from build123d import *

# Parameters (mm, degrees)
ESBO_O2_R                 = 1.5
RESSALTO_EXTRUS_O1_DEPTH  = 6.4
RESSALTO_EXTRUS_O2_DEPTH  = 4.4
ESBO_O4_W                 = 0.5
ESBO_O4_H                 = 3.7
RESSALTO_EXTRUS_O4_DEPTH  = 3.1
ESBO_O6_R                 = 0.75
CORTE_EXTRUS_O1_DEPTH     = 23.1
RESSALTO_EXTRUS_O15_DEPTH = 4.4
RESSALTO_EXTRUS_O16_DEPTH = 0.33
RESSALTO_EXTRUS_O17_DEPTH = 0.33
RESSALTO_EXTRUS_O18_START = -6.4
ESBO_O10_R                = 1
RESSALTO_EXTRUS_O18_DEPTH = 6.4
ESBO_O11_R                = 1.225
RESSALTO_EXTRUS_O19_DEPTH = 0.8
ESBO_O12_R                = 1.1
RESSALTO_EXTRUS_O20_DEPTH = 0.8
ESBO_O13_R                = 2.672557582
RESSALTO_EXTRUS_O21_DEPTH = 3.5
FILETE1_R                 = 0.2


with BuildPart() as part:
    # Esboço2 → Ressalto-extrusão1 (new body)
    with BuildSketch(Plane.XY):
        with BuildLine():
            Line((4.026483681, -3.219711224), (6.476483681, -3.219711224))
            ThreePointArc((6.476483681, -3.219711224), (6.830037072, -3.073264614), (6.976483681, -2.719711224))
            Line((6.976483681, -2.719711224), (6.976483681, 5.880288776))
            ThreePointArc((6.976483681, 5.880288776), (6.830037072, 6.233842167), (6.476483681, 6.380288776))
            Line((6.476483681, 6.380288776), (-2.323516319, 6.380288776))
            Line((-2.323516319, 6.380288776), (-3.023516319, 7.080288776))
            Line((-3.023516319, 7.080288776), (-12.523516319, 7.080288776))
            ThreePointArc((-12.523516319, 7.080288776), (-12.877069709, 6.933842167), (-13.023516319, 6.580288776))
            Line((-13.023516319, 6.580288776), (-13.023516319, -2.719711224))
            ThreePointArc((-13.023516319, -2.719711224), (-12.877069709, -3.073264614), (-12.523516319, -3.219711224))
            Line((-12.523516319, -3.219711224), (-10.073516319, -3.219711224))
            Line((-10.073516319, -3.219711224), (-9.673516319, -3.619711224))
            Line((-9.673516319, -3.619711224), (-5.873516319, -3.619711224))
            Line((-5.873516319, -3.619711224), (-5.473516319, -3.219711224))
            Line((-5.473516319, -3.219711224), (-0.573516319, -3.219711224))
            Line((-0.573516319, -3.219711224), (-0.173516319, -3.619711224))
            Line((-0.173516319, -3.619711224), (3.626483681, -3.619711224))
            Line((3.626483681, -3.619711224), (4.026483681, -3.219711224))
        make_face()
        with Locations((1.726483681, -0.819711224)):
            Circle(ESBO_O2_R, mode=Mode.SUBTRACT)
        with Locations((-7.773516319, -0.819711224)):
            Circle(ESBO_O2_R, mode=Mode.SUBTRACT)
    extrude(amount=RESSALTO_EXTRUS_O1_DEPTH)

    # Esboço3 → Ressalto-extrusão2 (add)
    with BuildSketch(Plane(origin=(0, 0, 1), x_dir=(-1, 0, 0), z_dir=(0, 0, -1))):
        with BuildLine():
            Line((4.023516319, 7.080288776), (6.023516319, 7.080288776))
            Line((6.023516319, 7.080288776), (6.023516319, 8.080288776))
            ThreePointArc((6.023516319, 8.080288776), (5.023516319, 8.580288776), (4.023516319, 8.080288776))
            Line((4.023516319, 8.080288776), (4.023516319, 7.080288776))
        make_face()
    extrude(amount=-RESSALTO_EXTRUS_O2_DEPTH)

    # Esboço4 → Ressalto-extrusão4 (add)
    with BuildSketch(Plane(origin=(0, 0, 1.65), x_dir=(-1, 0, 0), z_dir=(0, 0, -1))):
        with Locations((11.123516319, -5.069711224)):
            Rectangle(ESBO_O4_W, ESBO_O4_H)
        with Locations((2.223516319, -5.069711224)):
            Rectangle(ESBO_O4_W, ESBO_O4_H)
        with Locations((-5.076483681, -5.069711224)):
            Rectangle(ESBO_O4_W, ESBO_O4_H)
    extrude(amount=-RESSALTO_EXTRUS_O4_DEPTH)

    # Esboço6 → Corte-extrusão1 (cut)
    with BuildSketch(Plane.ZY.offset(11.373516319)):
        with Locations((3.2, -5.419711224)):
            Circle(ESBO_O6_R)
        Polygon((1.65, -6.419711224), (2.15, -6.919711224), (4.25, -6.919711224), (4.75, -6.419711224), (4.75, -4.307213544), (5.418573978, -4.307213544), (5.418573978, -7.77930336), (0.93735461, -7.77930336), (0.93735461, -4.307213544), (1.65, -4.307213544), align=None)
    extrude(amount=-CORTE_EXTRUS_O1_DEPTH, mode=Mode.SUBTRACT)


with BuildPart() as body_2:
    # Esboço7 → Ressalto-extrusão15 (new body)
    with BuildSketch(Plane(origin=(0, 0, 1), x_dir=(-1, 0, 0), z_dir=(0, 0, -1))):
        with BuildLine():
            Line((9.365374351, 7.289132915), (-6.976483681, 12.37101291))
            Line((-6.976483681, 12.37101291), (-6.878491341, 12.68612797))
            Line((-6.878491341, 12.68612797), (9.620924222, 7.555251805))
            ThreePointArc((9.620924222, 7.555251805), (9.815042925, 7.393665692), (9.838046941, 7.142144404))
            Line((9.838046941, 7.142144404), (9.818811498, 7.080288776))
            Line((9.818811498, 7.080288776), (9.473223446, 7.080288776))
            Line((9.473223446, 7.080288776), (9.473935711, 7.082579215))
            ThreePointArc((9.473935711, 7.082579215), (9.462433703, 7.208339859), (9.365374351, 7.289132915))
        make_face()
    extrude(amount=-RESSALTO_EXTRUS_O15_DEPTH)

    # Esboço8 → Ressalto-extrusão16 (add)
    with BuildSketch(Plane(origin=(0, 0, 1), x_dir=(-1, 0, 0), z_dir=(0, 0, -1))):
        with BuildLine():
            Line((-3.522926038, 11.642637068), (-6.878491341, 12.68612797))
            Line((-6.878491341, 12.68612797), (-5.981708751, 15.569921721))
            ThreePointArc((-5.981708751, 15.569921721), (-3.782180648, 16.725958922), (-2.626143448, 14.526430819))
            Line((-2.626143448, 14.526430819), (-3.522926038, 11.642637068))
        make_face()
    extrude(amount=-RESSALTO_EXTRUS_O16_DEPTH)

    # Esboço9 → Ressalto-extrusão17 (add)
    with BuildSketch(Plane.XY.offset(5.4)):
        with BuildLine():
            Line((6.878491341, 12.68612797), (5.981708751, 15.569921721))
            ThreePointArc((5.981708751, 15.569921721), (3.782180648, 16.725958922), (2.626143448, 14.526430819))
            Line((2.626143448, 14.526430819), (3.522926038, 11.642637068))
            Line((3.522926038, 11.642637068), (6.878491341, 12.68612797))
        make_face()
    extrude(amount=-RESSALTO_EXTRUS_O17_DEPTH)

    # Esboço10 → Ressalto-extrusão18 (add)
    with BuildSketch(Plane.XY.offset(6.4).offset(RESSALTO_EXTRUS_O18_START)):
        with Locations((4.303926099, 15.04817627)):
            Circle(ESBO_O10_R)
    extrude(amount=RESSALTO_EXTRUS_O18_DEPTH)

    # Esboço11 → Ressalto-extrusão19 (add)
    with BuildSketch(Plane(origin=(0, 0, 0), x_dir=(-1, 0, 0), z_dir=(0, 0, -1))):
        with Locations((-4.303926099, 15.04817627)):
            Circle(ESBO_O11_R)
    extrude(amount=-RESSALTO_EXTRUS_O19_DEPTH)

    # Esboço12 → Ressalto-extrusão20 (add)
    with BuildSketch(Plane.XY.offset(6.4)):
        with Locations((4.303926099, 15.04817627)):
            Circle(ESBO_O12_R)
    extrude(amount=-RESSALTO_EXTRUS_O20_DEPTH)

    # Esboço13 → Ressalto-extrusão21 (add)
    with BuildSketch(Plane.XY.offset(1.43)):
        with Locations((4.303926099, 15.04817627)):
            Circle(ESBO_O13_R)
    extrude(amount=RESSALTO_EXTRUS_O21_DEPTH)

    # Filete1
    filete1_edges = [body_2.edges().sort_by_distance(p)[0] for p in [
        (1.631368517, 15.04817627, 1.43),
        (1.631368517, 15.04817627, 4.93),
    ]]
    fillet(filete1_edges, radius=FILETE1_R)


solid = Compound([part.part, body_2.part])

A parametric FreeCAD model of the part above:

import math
import FreeCAD as App
import Part
import Sketcher
Q = App.Units.Quantity


def edges_at(feature, points):
    """Names of the edges that pass closest to the given points."""
    edges = feature.Shape.Edges
    near = lambda p: min(range(len(edges)), key=lambda i: edges[i].distToShape(Part.Vertex(*p))[0])
    return sorted({f"Edge{near(p) + 1}" for p in points})


def add_polygon(sketch, points):
    """Adds a closed chain of lines whose ends are joined by coincident constraints."""
    first, n = sketch.GeometryCount, len(points)
    for a, b in zip(points, points[1:] + points[:1]):
        sketch.addGeometry(Part.LineSegment(App.Vector(*a, 0), App.Vector(*b, 0)), False)
    for i in range(n):
        sketch.addConstraint(Sketcher.Constraint("Coincident", first + i, 2, first + (i + 1) % n, 1))

doc = App.newDocument("Part")
body = doc.addObject("PartDesign::Body", "Body")

sketch1 = doc.addObject("Sketcher::SketchObject", "Sketch")
body.addObject(sketch1)
sketch1.AttachmentSupport = (doc.XY_Plane, [""])
sketch1.MapMode = "FlatFace"
sketch1.addGeometry([
    Part.LineSegment(App.Vector(4.03, -3.22, 0), App.Vector(6.48, -3.22, 0)),
    Part.ArcOfCircle(Part.Circle(App.Vector(6.48, -2.72, 0), App.Vector(0, 0, 1), 0.5), math.radians(-90), math.radians(0)),
    Part.LineSegment(App.Vector(6.98, -2.72, 0), App.Vector(6.98, 5.88, 0)),
    Part.ArcOfCircle(Part.Circle(App.Vector(6.48, 5.88, 0), App.Vector(0, 0, 1), 0.5), math.radians(0), math.radians(90)),
    Part.LineSegment(App.Vector(6.48, 6.38, 0), App.Vector(-2.32, 6.38, 0)),
    Part.LineSegment(App.Vector(-2.32, 6.38, 0), App.Vector(-3.02, 7.08, 0)),
    Part.LineSegment(App.Vector(-3.02, 7.08, 0), App.Vector(-12.52, 7.08, 0)),
    Part.ArcOfCircle(Part.Circle(App.Vector(-12.52, 6.58, 0), App.Vector(0, 0, 1), 0.5), math.radians(90), math.radians(180)),
    Part.LineSegment(App.Vector(-13.02, 6.58, 0), App.Vector(-13.02, -2.72, 0)),
    Part.ArcOfCircle(Part.Circle(App.Vector(-12.52, -2.72, 0), App.Vector(0, 0, 1), 0.5), math.radians(-180), math.radians(-90)),
    Part.LineSegment(App.Vector(-12.52, -3.22, 0), App.Vector(-10.07, -3.22, 0)),
    Part.LineSegment(App.Vector(-10.07, -3.22, 0), App.Vector(-9.67, -3.62, 0)),
    Part.LineSegment(App.Vector(-9.67, -3.62, 0), App.Vector(-5.87, -3.62, 0)),
    Part.LineSegment(App.Vector(-5.87, -3.62, 0), App.Vector(-5.47, -3.22, 0)),
    Part.LineSegment(App.Vector(-5.47, -3.22, 0), App.Vector(-0.57, -3.22, 0)),
    Part.LineSegment(App.Vector(-0.57, -3.22, 0), App.Vector(-0.17, -3.62, 0)),
    Part.LineSegment(App.Vector(-0.17, -3.62, 0), App.Vector(3.63, -3.62, 0)),
    Part.LineSegment(App.Vector(3.63, -3.62, 0), App.Vector(4.03, -3.22, 0)),
    Part.Circle(App.Vector(-7.77, -0.82, 0), App.Vector(0, 0, 1), 1.5),
    Part.Circle(App.Vector(1.73, -0.82, 0), App.Vector(0, 0, 1), 1.5),
], False)
sketch1.addConstraint([
    Sketcher.Constraint("Tangent", 0, 2, 1, 1),
    Sketcher.Constraint("Tangent", 1, 2, 2, 1),
    Sketcher.Constraint("Tangent", 2, 2, 3, 1),
    Sketcher.Constraint("Tangent", 3, 2, 4, 1),
    Sketcher.Constraint("Coincident", 4, 2, 5, 1),
    Sketcher.Constraint("Coincident", 5, 2, 6, 1),
    Sketcher.Constraint("Tangent", 6, 2, 7, 1),
    Sketcher.Constraint("Tangent", 7, 2, 8, 1),
    Sketcher.Constraint("Tangent", 8, 2, 9, 1),
    Sketcher.Constraint("Tangent", 9, 2, 10, 1),
    Sketcher.Constraint("Coincident", 10, 2, 11, 1),
    Sketcher.Constraint("Coincident", 11, 2, 12, 1),
    Sketcher.Constraint("Coincident", 12, 2, 13, 1),
    Sketcher.Constraint("Coincident", 13, 2, 14, 1),
    Sketcher.Constraint("Coincident", 14, 2, 15, 1),
    Sketcher.Constraint("Coincident", 15, 2, 16, 1),
    Sketcher.Constraint("Coincident", 16, 2, 17, 1),
    Sketcher.Constraint("Coincident", 17, 2, 0, 1),
    Sketcher.Constraint("Horizontal", 0),
    Sketcher.Constraint("Vertical", 2),
    Sketcher.Constraint("Horizontal", 4),
    Sketcher.Constraint("Horizontal", 6),
    Sketcher.Constraint("Vertical", 8),
    Sketcher.Constraint("Horizontal", 10),
    Sketcher.Constraint("Horizontal", 12),
    Sketcher.Constraint("Horizontal", 14),
    Sketcher.Constraint("Horizontal", 16),
    Sketcher.Constraint("Equal", 1, 3),
    Sketcher.Constraint("Equal", 3, 7),
    Sketcher.Constraint("Equal", 7, 9),
    Sketcher.Constraint("Equal", 18, 19),
    Sketcher.Constraint("Parallel", 5, 11),
    Sketcher.Constraint("Perpendicular", 11, 13),
    Sketcher.Constraint("Perpendicular", 13, 15),
    Sketcher.Constraint("Perpendicular", 15, 17),
    Sketcher.Constraint("Horizontal", 1, 3, 9, 3),
    Sketcher.Constraint("Horizontal", 18, 3, 19, 3),
    Sketcher.Constraint("Horizontal", 10, 2, 13, 2),
    Sketcher.Constraint("Horizontal", 12, 2, 15, 2),
    Sketcher.Constraint("Equal", 0, 10),
    Sketcher.Constraint("Equal", 12, 16),
    Sketcher.Constraint("Equal", 11, 13),
    Sketcher.Constraint("Diameter", 18, Q("3 mm")),
    Sketcher.Constraint("Radius", 1, Q("0.5 mm")),
    Sketcher.Constraint("DistanceX", 4, 2, 4, 1, Q("8.8 mm")),
    Sketcher.Constraint("DistanceX", 6, 2, 6, 1, Q("9.5 mm")),
    Sketcher.Constraint("DistanceX", 12, 1, 12, 2, Q("3.8 mm")),
    Sketcher.Constraint("DistanceX", 14, 1, 14, 2, Q("4.9 mm")),
    Sketcher.Constraint("DistanceY", 2, 1, 2, 2, Q("8.6 mm")),
    Sketcher.Constraint("DistanceY", 8, 2, 8, 1, Q("9.3 mm")),
    Sketcher.Constraint("DistanceX", 0, 1, 0, 2, Q("2.45 mm")),
    Sketcher.Constraint("DistanceY", 9, 3, 18, 3, Q("1.9 mm")),
    Sketcher.Constraint("DistanceX", 18, 3, 19, 3, Q("9.5 mm")),
    Sketcher.Constraint("DistanceX", 10, 2, 18, 3, Q("2.3 mm")),
    Sketcher.Constraint("DistanceY", 1, 3, -1, 1, Q("2.719711 mm")),
    Sketcher.Constraint("DistanceX", -1, 1, 1, 3, Q("6.476484 mm")),
])
pad1 = doc.addObject("PartDesign::Pad", "Pad")
body.addObject(pad1)
pad1.Profile = sketch1
pad1.Length = 6.4

sketch2 = doc.addObject("Sketcher::SketchObject", "Sketch001")
body.addObject(sketch2)
sketch2.AttachmentSupport = (doc.XY_Plane, [""])
sketch2.MapMode = "FlatFace"
sketch2.AttachmentOffset = App.Placement(App.Vector(0, 0, 1), App.Rotation())
sketch2.addGeometry([
    Part.LineSegment(App.Vector(-4, 7.1, 0), App.Vector(-6, 7.1, 0)),
    Part.LineSegment(App.Vector(-6, 7.1, 0), App.Vector(-6, 8.1, 0)),
    Part.ArcOfCircle(Part.Circle(App.Vector(-5, 7.3, 0), App.Vector(0, 0, 1), 1.2), math.radians(37), math.radians(143)),
    Part.LineSegment(App.Vector(-4, 8.1, 0), App.Vector(-4, 7.1, 0)),
], False)
sketch2.addConstraint([
    Sketcher.Constraint("Coincident", 0, 2, 1, 1),
    Sketcher.Constraint("Coincident", 1, 2, 2, 2),
    Sketcher.Constraint("Coincident", 2, 1, 3, 1),
    Sketcher.Constraint("Coincident", 3, 2, 0, 1),
    Sketcher.Constraint("Horizontal", 0),
    Sketcher.Constraint("Vertical", 1),
    Sketcher.Constraint("Vertical", 3),
    Sketcher.Constraint("Horizontal", 1, 2, 2, 1),
    Sketcher.Constraint("DistanceX", 0, 2, 0, 1, Q("2 mm")),
    Sketcher.Constraint("DistanceY", 1, 1, 1, 2, Q("1 mm")),
    Sketcher.Constraint("Radius", 2, Q("1.25 mm")),
    Sketcher.Constraint("DistanceY", -1, 1, 2, 3, Q("7.330289 mm")),
    Sketcher.Constraint("DistanceX", 2, 3, -1, 1, Q("5.023516 mm")),
])
pad2 = doc.addObject("PartDesign::Pad", "Pad001")
body.addObject(pad2)
pad2.Profile = sketch2
pad2.Length = 4.4

sketch3 = doc.addObject("Sketcher::SketchObject", "Sketch002")
body.addObject(sketch3)
sketch3.AttachmentSupport = (doc.XY_Plane, [""])
sketch3.MapMode = "FlatFace"
sketch3.AttachmentOffset = App.Placement(App.Vector(0, 0, 1.65), App.Rotation())
add_polygon(sketch3, [(-10.87, -3.22), (-10.87, -6.92), (-11.37, -6.92), (-11.37, -3.22)])
add_polygon(sketch3, [(-1.97, -3.22), (-1.97, -6.92), (-2.47, -6.92), (-2.47, -3.22)])
add_polygon(sketch3, [(5.33, -3.22), (5.33, -6.92), (4.83, -6.92), (4.83, -3.22)])
sketch3.addConstraint([
    Sketcher.Constraint("Vertical", 0),
    Sketcher.Constraint("Horizontal", 1),
    Sketcher.Constraint("Vertical", 2),
    Sketcher.Constraint("Horizontal", 3),
    Sketcher.Constraint("Vertical", 4),
    Sketcher.Constraint("Horizontal", 5),
    Sketcher.Constraint("Vertical", 6),
    Sketcher.Constraint("Horizontal", 7),
    Sketcher.Constraint("Vertical", 8),
    Sketcher.Constraint("Horizontal", 9),
    Sketcher.Constraint("Vertical", 10),
    Sketcher.Constraint("Horizontal", 11),
    Sketcher.Constraint("Horizontal", 1, 2, 4, 2),
    Sketcher.Constraint("Horizontal", 3, 2, 6, 2),
    Sketcher.Constraint("Horizontal", 5, 2, 8, 2),
    Sketcher.Constraint("Horizontal", 7, 2, 10, 2),
    Sketcher.Constraint("Equal", 3, 5),
    Sketcher.Constraint("Equal", 7, 9),
    Sketcher.Constraint("DistanceX", 1, 2, 1, 1, Q("0.5 mm")),
    Sketcher.Constraint("DistanceY", 0, 2, 0, 1, Q("3.7 mm")),
    Sketcher.Constraint("DistanceX", 0, 2, 4, 2, Q("8.9 mm")),
    Sketcher.Constraint("DistanceX", 4, 2, 8, 2, Q("7.3 mm")),
    Sketcher.Constraint("DistanceY", 0, 2, -1, 1, Q("6.919711 mm")),
    Sketcher.Constraint("DistanceX", 0, 2, -1, 1, Q("10.873516 mm")),
])
pad3 = doc.addObject("PartDesign::Pad", "Pad002")
body.addObject(pad3)
pad3.Profile = sketch3
pad3.Length = 3.1

sketch4 = doc.addObject("Sketcher::SketchObject", "Sketch003")
body.addObject(sketch4)
sketch4.AttachmentSupport = (doc.YZ_Plane, [""])
sketch4.MapMode = "FlatFace"
sketch4.AttachmentOffset = App.Placement(App.Vector(0, 0, -11.373516), App.Rotation())
sketch4.addGeometry(Part.Circle(App.Vector(-5.4, 3.2, 0), App.Vector(0, 0, 1), 0.8), False)
add_polygon(sketch4, [(-6.9, 2.1), (-6.4, 1.6), (-4.3, 1.6), (-4.3, 0.9), (-7.8, 0.9), (-7.8, 5.4), (-4.3, 5.4), (-4.3, 4.8), (-6.4, 4.8), (-6.9, 4.2)])
sketch4.addConstraint([
    Sketcher.Constraint("Horizontal", 2),
    Sketcher.Constraint("Vertical", 3),
    Sketcher.Constraint("Horizontal", 4),
    Sketcher.Constraint("Vertical", 5),
    Sketcher.Constraint("Horizontal", 6),
    Sketcher.Constraint("Vertical", 7),
    Sketcher.Constraint("Horizontal", 8),
    Sketcher.Constraint("Vertical", 10),
    Sketcher.Constraint("Perpendicular", 1, 9),
    Sketcher.Constraint("Vertical", 3, 2, 6, 2),
    Sketcher.Constraint("Vertical", 1, 2, 8, 2),
    Sketcher.Constraint("Equal", 1, 9),
    Sketcher.Constraint("Diameter", 0, Q("1.5 mm")),
    Sketcher.Constraint("DistanceY", 10, 2, 10, 1, Q("2.1 mm")),
    Sketcher.Constraint("DistanceX", 1, 2, 0, 3, Q("1 mm")),
    Sketcher.Constraint("DistanceY", -1, 1, 0, 3, Q("3.2 mm")),
    Sketcher.Constraint("DistanceY", 2, 2, 7, 2, Q("3.1 mm")),
    Sketcher.Constraint("DistanceY", -1, 1, 1, 2, Q("1.65 mm")),
    Sketcher.Constraint("DistanceX", 4, 2, 4, 1, Q("3.47209 mm")),
    Sketcher.Constraint("DistanceY", 5, 1, 5, 2, Q("4.481219 mm")),
    Sketcher.Constraint("DistanceX", 2, 1, 2, 2, Q("2.112498 mm")),
    Sketcher.Constraint("DistanceY", 3, 2, 3, 1, Q("0.712645 mm")),
    Sketcher.Constraint("DistanceX", 0, 3, -1, 1, Q("5.419711 mm")),
])
pocket1 = doc.addObject("PartDesign::Pocket", "Pocket")
body.addObject(pocket1)
pocket1.Profile = sketch4
pocket1.Length = 23.1
pocket1.Reversed = True
body2 = doc.addObject("PartDesign::Body", "Body001")

sketch5 = doc.addObject("Sketcher::SketchObject", "Sketch004")
body2.addObject(sketch5)
sketch5.AttachmentSupport = (doc.getObject("XY_Plane001"), [""])
sketch5.MapMode = "FlatFace"
sketch5.AttachmentOffset = App.Placement(App.Vector(0, 0, 1), App.Rotation())
sketch5.addGeometry([
    Part.LineSegment(App.Vector(6.9765, 12.371, 0), App.Vector(-9.3654, 7.2891, 0)),
    Part.ArcOfCircle(Part.Circle(App.Vector(-9.3164, 7.1316, 0), App.Vector(0, 0, 1), 0.165), math.radians(107), math.radians(197)),
    Part.LineSegment(App.Vector(-9.4739, 7.0826, 0), App.Vector(-9.4732, 7.0803, 0)),
    Part.LineSegment(App.Vector(-9.4732, 7.0803, 0), App.Vector(-9.8188, 7.0803, 0)),
    Part.LineSegment(App.Vector(-9.8188, 7.0803, 0), App.Vector(-9.838, 7.1421, 0)),
    Part.ArcOfCircle(Part.Circle(App.Vector(-9.5229, 7.2401, 0), App.Vector(0, 0, 1), 0.33), math.radians(107), math.radians(197)),
    Part.LineSegment(App.Vector(-9.6209, 7.5553, 0), App.Vector(6.8785, 12.6861, 0)),
    Part.LineSegment(App.Vector(6.8785, 12.6861, 0), App.Vector(6.9765, 12.371, 0)),
], False)
sketch5.addConstraint([
    Sketcher.Constraint("Tangent", 0, 2, 1, 1),
    Sketcher.Constraint("Tangent", 1, 2, 2, 1),
    Sketcher.Constraint("Coincident", 2, 2, 3, 1),
    Sketcher.Constraint("Coincident", 3, 2, 4, 1),
    Sketcher.Constraint("Tangent", 4, 2, 5, 2),
    Sketcher.Constraint("Tangent", 5, 1, 6, 1),
    Sketcher.Constraint("Coincident", 6, 2, 7, 1),
    Sketcher.Constraint("Coincident", 7, 2, 0, 1),
    Sketcher.Constraint("Horizontal", 3),
    Sketcher.Constraint("Parallel", 2, 4),
    Sketcher.Constraint("Perpendicular", 4, 6),
    Sketcher.Constraint("Perpendicular", 6, 7),
    Sketcher.Constraint("Radius", 5, Q("0.33 mm")),
    Sketcher.Constraint("Radius", 1, Q("0.165 mm")),
    Sketcher.Constraint("Distance", 7, Q("0.33 mm")),
    Sketcher.Constraint("Distance", 2, Q("0.002399 mm")),
    Sketcher.Constraint("DistanceX", 3, 2, 3, 1, Q("0.345588 mm")),
    Sketcher.Constraint("DistanceX", 5, 1, 2, 2, Q("0.147701 mm")),
    Sketcher.Constraint("Distance", 0, Q("17.113791 mm")),
    Sketcher.Constraint("Distance", 6, Q("17.278791 mm")),
    Sketcher.Constraint("DistanceX", 1, 3, -1, 1, Q("9.316378 mm")),
    Sketcher.Constraint("DistanceY", -1, 1, 1, 2, Q("7.082579 mm")),
])
pad4 = doc.addObject("PartDesign::Pad", "Pad003")
body2.addObject(pad4)
pad4.Profile = sketch5
pad4.Length = 4.4

sketch6 = doc.addObject("Sketcher::SketchObject", "Sketch005")
body2.addObject(sketch6)
sketch6.AttachmentSupport = (doc.getObject("XY_Plane001"), [""])
sketch6.MapMode = "FlatFace"
sketch6.AttachmentOffset = App.Placement(App.Vector(0, 0, 1), App.Rotation())
sketch6.addGeometry([
    Part.LineSegment(App.Vector(6.9, 12.7, 0), App.Vector(3.5, 11.6, 0)),
    Part.LineSegment(App.Vector(3.5, 11.6, 0), App.Vector(2.6, 14.5, 0)),
    Part.ArcOfCircle(Part.Circle(App.Vector(4.3, 15, 0), App.Vector(0, 0, 1), 1.8), math.radians(17), math.radians(197)),
    Part.LineSegment(App.Vector(6, 15.6, 0), App.Vector(6.9, 12.7, 0)),
], False)
sketch6.addConstraint([
    Sketcher.Constraint("Coincident", 0, 2, 1, 1),
    Sketcher.Constraint("Tangent", 1, 2, 2, 2),
    Sketcher.Constraint("Tangent", 2, 1, 3, 1),
    Sketcher.Constraint("Coincident", 3, 2, 0, 1),
    Sketcher.Constraint("Perpendicular", 0, 1),
    Sketcher.Constraint("Parallel", 1, 3),
    Sketcher.Constraint("Radius", 2, Q("1.757035 mm")),
    Sketcher.Constraint("DistanceX", 0, 2, 2, 3, Q("0.781 mm")),
    Sketcher.Constraint("DistanceY", -1, 1, 1, 2, Q("14.526431 mm")),
    Sketcher.Constraint("DistanceX", -1, 1, 2, 1, Q("5.981709 mm")),
    Sketcher.Constraint("DistanceY", -1, 1, 2, 1, Q("15.569922 mm")),
])
pad5 = doc.addObject("PartDesign::Pad", "Pad004")
body2.addObject(pad5)
pad5.Profile = sketch6
pad5.Length = 0.33

sketch7 = doc.addObject("Sketcher::SketchObject", "Sketch006")
body2.addObject(sketch7)
sketch7.AttachmentSupport = (doc.getObject("XY_Plane001"), [""])
sketch7.MapMode = "FlatFace"
sketch7.AttachmentOffset = App.Placement(App.Vector(0, 0, 5.4), App.Rotation())
sketch7.addGeometry([
    Part.LineSegment(App.Vector(6.9, 12.7, 0), App.Vector(6, 15.6, 0)),
    Part.ArcOfCircle(Part.Circle(App.Vector(4.3, 15, 0), App.Vector(0, 0, 1), 1.8), math.radians(17), math.radians(197)),
    Part.LineSegment(App.Vector(2.6, 14.5, 0), App.Vector(3.5, 11.6, 0)),
    Part.LineSegment(App.Vector(3.5, 11.6, 0), App.Vector(6.9, 12.7, 0)),
], False)
sketch7.addConstraint([
    Sketcher.Constraint("Tangent", 0, 2, 1, 1),
    Sketcher.Constraint("Tangent", 1, 2, 2, 1),
    Sketcher.Constraint("Coincident", 2, 2, 3, 1),
    Sketcher.Constraint("Coincident", 3, 2, 0, 1),
    Sketcher.Constraint("Parallel", 0, 2),
    Sketcher.Constraint("Perpendicular", 2, 3),
    Sketcher.Constraint("Radius", 1, Q("1.757035 mm")),
    Sketcher.Constraint("DistanceX", 2, 2, 1, 3, Q("0.781 mm")),
    Sketcher.Constraint("DistanceX", -1, 1, 0, 2, Q("5.981709 mm")),
    Sketcher.Constraint("DistanceY", -1, 1, 0, 2, Q("15.569922 mm")),
    Sketcher.Constraint("DistanceY", -1, 1, 1, 2, Q("14.526431 mm")),
])
pad6 = doc.addObject("PartDesign::Pad", "Pad005")
body2.addObject(pad6)
pad6.Profile = sketch7
pad6.Length = 0.33
pad6.Reversed = True

sketch8 = doc.addObject("Sketcher::SketchObject", "Sketch007")
body2.addObject(sketch8)
sketch8.AttachmentSupport = (doc.getObject("XY_Plane001"), [""])
sketch8.MapMode = "FlatFace"
sketch8.addGeometry(Part.Circle(App.Vector(4.3, 15, 0), App.Vector(0, 0, 1), 1), False)
sketch8.addConstraint([
    Sketcher.Constraint("Diameter", 0, Q("2 mm")),
    Sketcher.Constraint("DistanceX", -1, 1, 0, 3, Q("4.303926 mm")),
    Sketcher.Constraint("DistanceY", -1, 1, 0, 3, Q("15.048176 mm")),
])
pad7 = doc.addObject("PartDesign::Pad", "Pad006")
body2.addObject(pad7)
pad7.Profile = sketch8
pad7.Length = 6.4

sketch9 = doc.addObject("Sketcher::SketchObject", "Sketch008")
body2.addObject(sketch9)
sketch9.AttachmentSupport = (doc.getObject("XY_Plane001"), [""])
sketch9.MapMode = "FlatFace"
sketch9.addGeometry(Part.Circle(App.Vector(4.3, 15, 0), App.Vector(0, 0, 1), 1.2), False)
sketch9.addConstraint([
    Sketcher.Constraint("Diameter", 0, Q("2.45 mm")),
    Sketcher.Constraint("DistanceX", -1, 1, 0, 3, Q("4.303926 mm")),
    Sketcher.Constraint("DistanceY", -1, 1, 0, 3, Q("15.048176 mm")),
])
pad8 = doc.addObject("PartDesign::Pad", "Pad007")
body2.addObject(pad8)
pad8.Profile = sketch9
pad8.Length = 0.8

sketch10 = doc.addObject("Sketcher::SketchObject", "Sketch009")
body2.addObject(sketch10)
sketch10.AttachmentSupport = (doc.getObject("XY_Plane001"), [""])
sketch10.MapMode = "FlatFace"
sketch10.AttachmentOffset = App.Placement(App.Vector(0, 0, 6.4), App.Rotation())
sketch10.addGeometry(Part.Circle(App.Vector(4.3, 15, 0), App.Vector(0, 0, 1), 1.1), False)
sketch10.addConstraint([
    Sketcher.Constraint("Diameter", 0, Q("2.2 mm")),
    Sketcher.Constraint("DistanceX", -1, 1, 0, 3, Q("4.303926 mm")),
    Sketcher.Constraint("DistanceY", -1, 1, 0, 3, Q("15.048176 mm")),
])
pad9 = doc.addObject("PartDesign::Pad", "Pad008")
body2.addObject(pad9)
pad9.Profile = sketch10
pad9.Length = 0.8
pad9.Reversed = True

sketch11 = doc.addObject("Sketcher::SketchObject", "Sketch010")
body2.addObject(sketch11)
sketch11.AttachmentSupport = (doc.getObject("XY_Plane001"), [""])
sketch11.MapMode = "FlatFace"
sketch11.AttachmentOffset = App.Placement(App.Vector(0, 0, 1.43), App.Rotation())
sketch11.addGeometry(Part.Circle(App.Vector(4.3, 15, 0), App.Vector(0, 0, 1), 2.7), False)
sketch11.addConstraint([
    Sketcher.Constraint("Diameter", 0, Q("5.345115 mm")),
    Sketcher.Constraint("DistanceX", -1, 1, 0, 3, Q("4.303926 mm")),
    Sketcher.Constraint("DistanceY", -1, 1, 0, 3, Q("15.048176 mm")),
])
pad10 = doc.addObject("PartDesign::Pad", "Pad009")
body2.addObject(pad10)
pad10.Profile = sketch11
pad10.Length = 3.5
doc.recompute()

fillet = doc.addObject("PartDesign::Fillet", "Fillet")
body2.addObject(fillet)
fillet.Base = (pad10, edges_at(pad10, [(1.631, 15.048, 1.43), (1.631, 15.048, 4.93)]))
fillet.Radius = 0.2

doc.recompute()
